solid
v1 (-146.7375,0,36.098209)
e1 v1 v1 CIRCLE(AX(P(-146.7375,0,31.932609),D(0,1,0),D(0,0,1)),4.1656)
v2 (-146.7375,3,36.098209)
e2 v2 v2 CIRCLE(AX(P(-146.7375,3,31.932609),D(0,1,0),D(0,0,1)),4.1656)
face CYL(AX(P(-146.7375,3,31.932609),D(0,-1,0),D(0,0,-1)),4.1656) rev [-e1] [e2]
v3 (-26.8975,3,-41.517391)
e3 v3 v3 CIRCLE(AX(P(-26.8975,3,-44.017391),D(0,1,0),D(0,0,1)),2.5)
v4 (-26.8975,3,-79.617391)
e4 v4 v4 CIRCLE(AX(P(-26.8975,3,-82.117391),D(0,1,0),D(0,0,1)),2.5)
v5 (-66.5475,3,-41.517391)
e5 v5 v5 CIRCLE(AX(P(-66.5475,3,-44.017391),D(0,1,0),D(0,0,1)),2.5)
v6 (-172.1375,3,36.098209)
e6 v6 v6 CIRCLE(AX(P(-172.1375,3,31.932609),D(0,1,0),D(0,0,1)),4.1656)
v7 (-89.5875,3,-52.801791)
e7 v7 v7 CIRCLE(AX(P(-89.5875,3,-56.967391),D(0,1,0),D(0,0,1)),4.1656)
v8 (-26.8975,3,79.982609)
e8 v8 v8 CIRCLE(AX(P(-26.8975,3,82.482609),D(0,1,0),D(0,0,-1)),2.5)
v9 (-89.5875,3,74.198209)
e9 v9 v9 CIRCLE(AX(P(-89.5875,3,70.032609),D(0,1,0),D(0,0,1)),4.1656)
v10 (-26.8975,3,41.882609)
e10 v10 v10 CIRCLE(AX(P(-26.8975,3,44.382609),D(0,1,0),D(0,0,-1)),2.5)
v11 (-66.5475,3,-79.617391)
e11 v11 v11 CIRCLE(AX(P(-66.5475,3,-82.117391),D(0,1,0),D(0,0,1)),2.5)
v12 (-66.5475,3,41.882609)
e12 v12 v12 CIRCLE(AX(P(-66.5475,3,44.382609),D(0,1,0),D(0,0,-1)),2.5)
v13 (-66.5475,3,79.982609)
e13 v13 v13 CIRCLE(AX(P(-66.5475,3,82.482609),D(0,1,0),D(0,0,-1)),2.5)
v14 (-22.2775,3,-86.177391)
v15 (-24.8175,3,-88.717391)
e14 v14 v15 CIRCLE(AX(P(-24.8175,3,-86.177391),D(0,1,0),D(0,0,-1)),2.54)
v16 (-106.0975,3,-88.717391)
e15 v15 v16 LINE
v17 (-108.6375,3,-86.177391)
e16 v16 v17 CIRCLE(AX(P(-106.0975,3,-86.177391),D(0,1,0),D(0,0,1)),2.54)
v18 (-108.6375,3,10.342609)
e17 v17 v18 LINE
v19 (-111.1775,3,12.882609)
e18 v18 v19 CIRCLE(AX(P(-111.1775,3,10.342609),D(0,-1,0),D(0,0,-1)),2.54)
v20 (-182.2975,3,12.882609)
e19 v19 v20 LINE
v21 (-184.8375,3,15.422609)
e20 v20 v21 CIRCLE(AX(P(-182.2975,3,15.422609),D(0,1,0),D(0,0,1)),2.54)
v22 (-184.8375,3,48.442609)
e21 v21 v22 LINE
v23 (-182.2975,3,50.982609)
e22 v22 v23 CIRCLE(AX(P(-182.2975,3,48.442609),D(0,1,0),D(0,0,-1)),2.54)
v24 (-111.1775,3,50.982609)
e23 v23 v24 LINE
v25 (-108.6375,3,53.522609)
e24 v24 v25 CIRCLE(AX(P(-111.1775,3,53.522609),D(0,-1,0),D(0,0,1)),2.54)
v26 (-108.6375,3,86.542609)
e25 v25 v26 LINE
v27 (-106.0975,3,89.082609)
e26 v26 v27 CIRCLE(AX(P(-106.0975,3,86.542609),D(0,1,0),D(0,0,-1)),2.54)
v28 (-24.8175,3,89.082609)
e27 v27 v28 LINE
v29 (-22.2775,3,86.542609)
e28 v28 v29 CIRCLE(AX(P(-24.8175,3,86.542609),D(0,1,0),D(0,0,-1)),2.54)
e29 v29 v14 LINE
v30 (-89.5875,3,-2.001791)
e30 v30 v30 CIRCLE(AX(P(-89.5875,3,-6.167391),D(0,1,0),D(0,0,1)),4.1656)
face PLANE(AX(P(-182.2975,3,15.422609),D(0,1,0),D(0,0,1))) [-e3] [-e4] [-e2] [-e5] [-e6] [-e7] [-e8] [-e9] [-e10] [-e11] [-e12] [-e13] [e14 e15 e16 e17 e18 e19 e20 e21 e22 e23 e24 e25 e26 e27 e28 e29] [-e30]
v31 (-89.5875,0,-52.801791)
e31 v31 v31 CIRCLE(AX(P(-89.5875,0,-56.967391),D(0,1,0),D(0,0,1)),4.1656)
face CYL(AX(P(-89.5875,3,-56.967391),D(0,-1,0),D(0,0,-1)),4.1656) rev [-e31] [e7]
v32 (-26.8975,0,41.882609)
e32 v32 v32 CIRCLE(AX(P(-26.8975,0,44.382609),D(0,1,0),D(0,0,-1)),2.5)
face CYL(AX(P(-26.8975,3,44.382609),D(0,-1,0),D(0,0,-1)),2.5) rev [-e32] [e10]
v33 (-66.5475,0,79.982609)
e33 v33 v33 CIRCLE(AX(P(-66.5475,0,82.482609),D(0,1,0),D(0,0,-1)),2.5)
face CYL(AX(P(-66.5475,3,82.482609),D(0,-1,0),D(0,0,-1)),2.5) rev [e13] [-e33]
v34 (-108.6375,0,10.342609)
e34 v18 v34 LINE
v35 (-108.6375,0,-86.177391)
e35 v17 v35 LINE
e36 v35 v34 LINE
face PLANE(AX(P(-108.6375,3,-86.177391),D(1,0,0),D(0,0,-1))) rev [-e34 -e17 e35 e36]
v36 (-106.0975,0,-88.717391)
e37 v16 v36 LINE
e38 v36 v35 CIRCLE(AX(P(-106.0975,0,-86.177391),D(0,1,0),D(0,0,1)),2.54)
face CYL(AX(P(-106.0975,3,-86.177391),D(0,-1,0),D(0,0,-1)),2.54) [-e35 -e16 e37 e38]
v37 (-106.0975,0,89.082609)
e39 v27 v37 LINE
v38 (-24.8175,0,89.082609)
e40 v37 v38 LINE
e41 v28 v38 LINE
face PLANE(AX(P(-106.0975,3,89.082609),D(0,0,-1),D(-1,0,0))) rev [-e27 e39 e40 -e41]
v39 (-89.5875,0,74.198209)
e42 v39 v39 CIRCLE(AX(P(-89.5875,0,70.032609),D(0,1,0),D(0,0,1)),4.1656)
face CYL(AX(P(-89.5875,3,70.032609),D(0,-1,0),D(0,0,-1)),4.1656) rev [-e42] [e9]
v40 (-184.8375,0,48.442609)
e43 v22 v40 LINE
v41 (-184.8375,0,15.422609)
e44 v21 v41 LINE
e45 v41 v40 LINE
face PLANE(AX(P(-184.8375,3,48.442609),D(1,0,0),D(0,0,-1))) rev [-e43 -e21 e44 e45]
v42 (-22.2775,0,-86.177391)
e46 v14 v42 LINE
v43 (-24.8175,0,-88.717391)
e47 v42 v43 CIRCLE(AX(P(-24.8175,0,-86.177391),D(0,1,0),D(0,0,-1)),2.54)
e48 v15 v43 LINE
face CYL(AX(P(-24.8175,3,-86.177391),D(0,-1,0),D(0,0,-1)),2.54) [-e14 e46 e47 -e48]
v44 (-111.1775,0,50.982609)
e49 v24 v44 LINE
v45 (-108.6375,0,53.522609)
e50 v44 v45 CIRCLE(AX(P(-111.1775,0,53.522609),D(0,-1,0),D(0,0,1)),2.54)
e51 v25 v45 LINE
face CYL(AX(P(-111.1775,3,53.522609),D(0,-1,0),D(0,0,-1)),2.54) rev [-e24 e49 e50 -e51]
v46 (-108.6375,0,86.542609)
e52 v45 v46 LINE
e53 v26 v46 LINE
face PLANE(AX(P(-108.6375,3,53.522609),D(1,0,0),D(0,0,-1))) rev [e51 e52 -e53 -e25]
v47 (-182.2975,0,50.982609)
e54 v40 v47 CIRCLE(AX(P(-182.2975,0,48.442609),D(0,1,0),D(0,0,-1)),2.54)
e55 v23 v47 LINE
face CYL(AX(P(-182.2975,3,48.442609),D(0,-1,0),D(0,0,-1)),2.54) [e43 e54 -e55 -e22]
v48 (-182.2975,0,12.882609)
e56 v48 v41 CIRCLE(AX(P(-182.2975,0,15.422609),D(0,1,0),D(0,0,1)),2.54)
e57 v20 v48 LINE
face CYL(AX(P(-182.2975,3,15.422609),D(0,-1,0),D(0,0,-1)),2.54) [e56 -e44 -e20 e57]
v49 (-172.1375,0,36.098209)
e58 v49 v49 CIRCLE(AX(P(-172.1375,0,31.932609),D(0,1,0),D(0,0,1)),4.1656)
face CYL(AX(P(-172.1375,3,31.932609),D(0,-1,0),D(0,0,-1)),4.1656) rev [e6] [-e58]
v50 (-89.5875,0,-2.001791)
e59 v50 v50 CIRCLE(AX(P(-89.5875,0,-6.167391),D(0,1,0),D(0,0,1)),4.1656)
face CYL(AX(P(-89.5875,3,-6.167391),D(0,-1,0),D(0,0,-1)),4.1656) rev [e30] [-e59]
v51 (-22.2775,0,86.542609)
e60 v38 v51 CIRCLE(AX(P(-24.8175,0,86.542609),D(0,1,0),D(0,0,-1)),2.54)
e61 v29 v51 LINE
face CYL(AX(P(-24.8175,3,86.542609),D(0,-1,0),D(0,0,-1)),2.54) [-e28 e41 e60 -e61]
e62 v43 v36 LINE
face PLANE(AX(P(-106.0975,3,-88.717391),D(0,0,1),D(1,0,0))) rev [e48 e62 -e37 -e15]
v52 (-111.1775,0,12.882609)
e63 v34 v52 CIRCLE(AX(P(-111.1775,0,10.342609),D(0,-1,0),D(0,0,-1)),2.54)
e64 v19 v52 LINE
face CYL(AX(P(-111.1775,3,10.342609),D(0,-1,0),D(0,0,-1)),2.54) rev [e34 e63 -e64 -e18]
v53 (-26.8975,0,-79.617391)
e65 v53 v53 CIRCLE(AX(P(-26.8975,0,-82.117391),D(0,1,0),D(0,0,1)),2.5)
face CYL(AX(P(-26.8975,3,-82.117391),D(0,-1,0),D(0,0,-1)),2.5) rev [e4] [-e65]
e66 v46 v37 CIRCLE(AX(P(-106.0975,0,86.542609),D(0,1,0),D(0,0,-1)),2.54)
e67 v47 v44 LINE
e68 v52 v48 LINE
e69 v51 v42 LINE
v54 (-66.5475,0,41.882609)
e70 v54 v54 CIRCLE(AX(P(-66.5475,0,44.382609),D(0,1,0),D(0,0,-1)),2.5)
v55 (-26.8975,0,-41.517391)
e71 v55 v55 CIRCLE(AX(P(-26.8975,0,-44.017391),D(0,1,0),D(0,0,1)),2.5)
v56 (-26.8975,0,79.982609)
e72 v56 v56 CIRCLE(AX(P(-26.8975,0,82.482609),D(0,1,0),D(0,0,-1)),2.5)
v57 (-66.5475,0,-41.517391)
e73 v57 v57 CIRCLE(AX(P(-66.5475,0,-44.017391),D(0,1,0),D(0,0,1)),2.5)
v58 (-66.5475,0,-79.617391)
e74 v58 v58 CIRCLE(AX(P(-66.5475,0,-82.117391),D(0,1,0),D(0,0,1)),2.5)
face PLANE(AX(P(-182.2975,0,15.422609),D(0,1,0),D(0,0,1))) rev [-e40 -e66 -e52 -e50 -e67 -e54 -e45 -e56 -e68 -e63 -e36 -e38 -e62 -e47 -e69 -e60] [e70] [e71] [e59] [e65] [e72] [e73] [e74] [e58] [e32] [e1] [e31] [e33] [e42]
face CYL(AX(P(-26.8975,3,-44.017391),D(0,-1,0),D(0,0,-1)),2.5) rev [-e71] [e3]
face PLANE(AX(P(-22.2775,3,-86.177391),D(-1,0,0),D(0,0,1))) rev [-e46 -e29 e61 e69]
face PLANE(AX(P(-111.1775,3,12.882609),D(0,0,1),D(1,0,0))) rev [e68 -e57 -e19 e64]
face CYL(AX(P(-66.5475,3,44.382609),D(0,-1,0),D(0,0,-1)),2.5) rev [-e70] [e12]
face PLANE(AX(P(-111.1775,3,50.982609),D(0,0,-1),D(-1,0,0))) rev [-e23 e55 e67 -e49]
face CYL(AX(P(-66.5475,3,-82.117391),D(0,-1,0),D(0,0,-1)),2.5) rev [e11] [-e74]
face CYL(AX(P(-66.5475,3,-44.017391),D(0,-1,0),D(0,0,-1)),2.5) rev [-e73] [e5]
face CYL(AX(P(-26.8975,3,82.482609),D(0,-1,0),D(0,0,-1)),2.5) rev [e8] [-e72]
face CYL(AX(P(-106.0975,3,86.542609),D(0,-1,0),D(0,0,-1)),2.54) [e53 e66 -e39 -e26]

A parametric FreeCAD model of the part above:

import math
import FreeCAD as App
import Part
import Sketcher
Q = App.Units.Quantity

doc = App.newDocument("Part")
body = doc.addObject("PartDesign::Body", "Body")

# Sketch on XZ plane
sketch1 = body.newObject("Sketcher::SketchObject", "Sketch")
sketch1.AttachmentSupport = (doc.getObject("XZ_Plane"), [""])
sketch1.MapMode = "FlatFace"
sketch1.addGeometry(Part.LineSegment(App.Vector(-108.6, 53.5, 0), App.Vector(-108.6, 86.5, 0)), False)
sketch1.addGeometry(Part.ArcOfCircle(Part.Circle(App.Vector(-106.1, 86.5, 0), App.Vector(0, 0, 1), 2.5), math.radians(90), math.radians(180)), False)
sketch1.addGeometry(Part.LineSegment(App.Vector(-106.1, 89.1, 0), App.Vector(-24.8, 89.1, 0)), False)
sketch1.addGeometry(Part.ArcOfCircle(Part.Circle(App.Vector(-24.8, 86.5, 0), App.Vector(0, 0, 1), 2.5), math.radians(0), math.radians(90)), False)
sketch1.addGeometry(Part.LineSegment(App.Vector(-22.3, 86.5, 0), App.Vector(-22.3, -86.2, 0)), False)
sketch1.addGeometry(Part.ArcOfCircle(Part.Circle(App.Vector(-24.8, -86.2, 0), App.Vector(0, 0, 1), 2.5), math.radians(-90), math.radians(0)), False)
sketch1.addGeometry(Part.LineSegment(App.Vector(-24.8, -88.7, 0), App.Vector(-106.1, -88.7, 0)), False)
sketch1.addGeometry(Part.ArcOfCircle(Part.Circle(App.Vector(-106.1, -86.2, 0), App.Vector(0, 0, 1), 2.5), math.radians(180), math.radians(270)), False)
sketch1.addGeometry(Part.LineSegment(App.Vector(-108.6, -86.2, 0), App.Vector(-108.6, 10.3, 0)), False)
sketch1.addGeometry(Part.ArcOfCircle(Part.Circle(App.Vector(-111.2, 10.3, 0), App.Vector(0, 0, 1), 2.5), math.radians(0), math.radians(90)), False)
sketch1.addGeometry(Part.LineSegment(App.Vector(-111.2, 12.9, 0), App.Vector(-182.3, 12.9, 0)), False)
sketch1.addGeometry(Part.ArcOfCircle(Part.Circle(App.Vector(-182.3, 15.4, 0), App.Vector(0, 0, 1), 2.5), math.radians(180), math.radians(270)), False)
sketch1.addGeometry(Part.LineSegment(App.Vector(-184.8, 15.4, 0), App.Vector(-184.8, 48.4, 0)), False)
sketch1.addGeometry(Part.ArcOfCircle(Part.Circle(App.Vector(-182.3, 48.4, 0), App.Vector(0, 0, 1), 2.5), math.radians(90), math.radians(180)), False)
sketch1.addGeometry(Part.LineSegment(App.Vector(-182.3, 51, 0), App.Vector(-111.2, 51, 0)), False)
sketch1.addGeometry(Part.ArcOfCircle(Part.Circle(App.Vector(-111.2, 53.5, 0), App.Vector(0, 0, 1), 2.5), math.radians(-90), math.radians(0)), False)
sketch1.addGeometry(Part.Circle(App.Vector(-172.1, 31.9, 0), App.Vector(0, 0, 1), 4.2), False)
sketch1.addGeometry(Part.Circle(App.Vector(-146.7, 31.9, 0), App.Vector(0, 0, 1), 4.2), False)
sketch1.addGeometry(Part.Circle(App.Vector(-89.6, 70, 0), App.Vector(0, 0, 1), 4.2), False)
sketch1.addGeometry(Part.Circle(App.Vector(-66.5, 82.5, 0), App.Vector(0, 0, 1), 2.5), False)
sketch1.addGeometry(Part.Circle(App.Vector(-66.5, 44.4, 0), App.Vector(0, 0, 1), 2.5), False)
sketch1.addGeometry(Part.Circle(App.Vector(-26.9, 82.5, 0), App.Vector(0, 0, 1), 2.5), False)
sketch1.addGeometry(Part.Circle(App.Vector(-26.9, 44.4, 0), App.Vector(0, 0, 1), 2.5), False)
sketch1.addGeometry(Part.Circle(App.Vector(-89.6, -6.2, 0), App.Vector(0, 0, 1), 4.2), False)
sketch1.addGeometry(Part.Circle(App.Vector(-89.6, -57, 0), App.Vector(0, 0, 1), 4.2), False)
sketch1.addGeometry(Part.Circle(App.Vector(-66.5, -44, 0), App.Vector(0, 0, 1), 2.5), False)
sketch1.addGeometry(Part.Circle(App.Vector(-66.5, -82.1, 0), App.Vector(0, 0, 1), 2.5), False)
sketch1.addGeometry(Part.Circle(App.Vector(-26.9, -44, 0), App.Vector(0, 0, 1), 2.5), False)
sketch1.addGeometry(Part.Circle(App.Vector(-26.9, -82.1, 0), App.Vector(0, 0, 1), 2.5), False)
sketch1.addConstraint(Sketcher.Constraint("Tangent", 0, 2, 1, 2))
sketch1.addConstraint(Sketcher.Constraint("Tangent", 1, 1, 2, 1))
sketch1.addConstraint(Sketcher.Constraint("Tangent", 2, 2, 3, 2))
sketch1.addConstraint(Sketcher.Constraint("Tangent", 3, 1, 4, 1))
sketch1.addConstraint(Sketcher.Constraint("Tangent", 4, 2, 5, 2))
sketch1.addConstraint(Sketcher.Constraint("Tangent", 5, 1, 6, 1))
sketch1.addConstraint(Sketcher.Constraint("Tangent", 6, 2, 7, 2))
sketch1.addConstraint(Sketcher.Constraint("Tangent", 7, 1, 8, 1))
sketch1.addConstraint(Sketcher.Constraint("Tangent", 8, 2, 9, 1))
sketch1.addConstraint(Sketcher.Constraint("Tangent", 9, 2, 10, 1))
sketch1.addConstraint(Sketcher.Constraint("Tangent", 10, 2, 11, 2))
sketch1.addConstraint(Sketcher.Constraint("Tangent", 11, 1, 12, 1))
sketch1.addConstraint(Sketcher.Constraint("Tangent", 12, 2, 13, 2))
sketch1.addConstraint(Sketcher.Constraint("Tangent", 13, 1, 14, 1))
sketch1.addConstraint(Sketcher.Constraint("Tangent", 14, 2, 15, 1))
sketch1.addConstraint(Sketcher.Constraint("Tangent", 15, 2, 0, 1))
sketch1.addConstraint(Sketcher.Constraint("Vertical", 0))
sketch1.addConstraint(Sketcher.Constraint("Horizontal", 2))
sketch1.addConstraint(Sketcher.Constraint("Vertical", 4))
sketch1.addConstraint(Sketcher.Constraint("Horizontal", 6))
sketch1.addConstraint(Sketcher.Constraint("Vertical", 8))
sketch1.addConstraint(Sketcher.Constraint("Horizontal", 10))
sketch1.addConstraint(Sketcher.Constraint("Vertical", 12))
sketch1.addConstraint(Sketcher.Constraint("Horizontal", 14))
sketch1.addConstraint(Sketcher.Constraint("Equal", 1, 3))
sketch1.addConstraint(Sketcher.Constraint("Equal", 3, 5))
sketch1.addConstraint(Sketcher.Constraint("Equal", 5, 7))
sketch1.addConstraint(Sketcher.Constraint("Equal", 7, 9))
sketch1.addConstraint(Sketcher.Constraint("Equal", 9, 11))
sketch1.addConstraint(Sketcher.Constraint("Equal", 11, 13))
sketch1.addConstraint(Sketcher.Constraint("Equal", 13, 15))
sketch1.addConstraint(Sketcher.Constraint("Equal", 16, 17))
sketch1.addConstraint(Sketcher.Constraint("Equal", 17, 18))
sketch1.addConstraint(Sketcher.Constraint("Equal", 19, 20))
sketch1.addConstraint(Sketcher.Constraint("Equal", 20, 21))
sketch1.addConstraint(Sketcher.Constraint("Equal", 21, 22))
sketch1.addConstraint(Sketcher.Constraint("Equal", 18, 23))
sketch1.addConstraint(Sketcher.Constraint("Equal", 23, 24))
sketch1.addConstraint(Sketcher.Constraint("Equal", 22, 25))
sketch1.addConstraint(Sketcher.Constraint("Equal", 25, 26))
sketch1.addConstraint(Sketcher.Constraint("Equal", 26, 27))
sketch1.addConstraint(Sketcher.Constraint("Equal", 27, 28))
sketch1.addConstraint(Sketcher.Constraint("Horizontal", 16, 3, 17, 3))
sketch1.addConstraint(Sketcher.Constraint("Horizontal", 19, 3, 21, 3))
sketch1.addConstraint(Sketcher.Constraint("Horizontal", 20, 3, 22, 3))
sketch1.addConstraint(Sketcher.Constraint("Horizontal", 25, 3, 27, 3))
sketch1.addConstraint(Sketcher.Constraint("Horizontal", 26, 3, 28, 3))
sketch1.addConstraint(Sketcher.Constraint("Vertical", 1, 3, 7, 3))
sketch1.addConstraint(Sketcher.Constraint("Vertical", 19, 3, 20, 3))
sketch1.addConstraint(Sketcher.Constraint("Vertical", 21, 3, 22, 3))
sketch1.addConstraint(Sketcher.Constraint("Vertical", 18, 3, 23, 3))
sketch1.addConstraint(Sketcher.Constraint("Vertical", 23, 3, 24, 3))
sketch1.addConstraint(Sketcher.Constraint("Vertical", 20, 3, 25, 3))
sketch1.addConstraint(Sketcher.Constraint("Vertical", 25, 3, 26, 3))
sketch1.addConstraint(Sketcher.Constraint("Vertical", 22, 3, 27, 3))
sketch1.addConstraint(Sketcher.Constraint("Vertical", 27, 3, 28, 3))
sketch1.addConstraint(Sketcher.Constraint("Equal", 0, 12))
sketch1.addConstraint(Sketcher.Constraint("Radius", 1, Q("0.1 in")))
sketch1.addConstraint(Sketcher.Constraint("Diameter", 16, Q("0.328 in")))
sketch1.addConstraint(Sketcher.Constraint("DistanceX", 2, 1, 2, 2, Q("3.2 in")))
sketch1.addConstraint(Sketcher.Constraint("DistanceX", 10, 2, 10, 1, Q("2.8 in")))
sketch1.addConstraint(Sketcher.Constraint("DistanceY", 0, 1, 0, 2, Q("1.3 in")))
sketch1.addConstraint(Sketcher.Constraint("DistanceY", 4, 2, 4, 1, Q("6.8 in")))
sketch1.addConstraint(Sketcher.Constraint("DistanceX", 16, 3, 17, 3, Q("1 in")))
sketch1.addConstraint(Sketcher.Constraint("DistanceY", 23, 3, 18, 3, Q("3 in")))
sketch1.addConstraint(Sketcher.Constraint("DistanceY", 24, 3, 23, 3, Q("2 in")))
sketch1.addConstraint(Sketcher.Constraint("DistanceX", 13, 3, 16, 3, Q("0.4 in")))
sketch1.addConstraint(Sketcher.Constraint("DistanceY", 17, 3, 18, 3, Q("1.5 in")))
sketch1.addConstraint(Sketcher.Constraint("DistanceY", 20, 3, 19, 3, Q("1.5 in")))
sketch1.addConstraint(Sketcher.Constraint("DistanceY", 26, 3, 25, 3, Q("1.5 in")))
sketch1.addConstraint(Sketcher.Constraint("Diameter", 19, Q("5 mm")))
sketch1.addConstraint(Sketcher.Constraint("DistanceY", 16, 3, 13, 3, Q("0.65 in")))
sketch1.addConstraint(Sketcher.Constraint("DistanceX", 1, 3, 18, 3, Q("0.65 in")))
sketch1.addConstraint(Sketcher.Constraint("DistanceX", 1, 3, -1, 1, Q("106.0975 mm")))
sketch1.addConstraint(Sketcher.Constraint("DistanceX", 19, 3, -1, 1, Q("66.5475 mm")))
sketch1.addConstraint(Sketcher.Constraint("DistanceX", 21, 3, -1, 1, Q("26.8975 mm")))
sketch1.addConstraint(Sketcher.Constraint("DistanceY", 18, 3, 19, 3, Q("12.45 mm")))
sketch1.addConstraint(Sketcher.Constraint("DistanceY", 24, 3, 25, 3, Q("12.95 mm")))
sketch1.addConstraint(Sketcher.Constraint("DistanceY", -1, 1, 1, 3, Q("86.542609 mm")))
pad1 = body.newObject("PartDesign::Pad", "Pad")
pad1.Profile = sketch1
pad1.Length = 3
pad1.Reversed = True

doc.recompute()
